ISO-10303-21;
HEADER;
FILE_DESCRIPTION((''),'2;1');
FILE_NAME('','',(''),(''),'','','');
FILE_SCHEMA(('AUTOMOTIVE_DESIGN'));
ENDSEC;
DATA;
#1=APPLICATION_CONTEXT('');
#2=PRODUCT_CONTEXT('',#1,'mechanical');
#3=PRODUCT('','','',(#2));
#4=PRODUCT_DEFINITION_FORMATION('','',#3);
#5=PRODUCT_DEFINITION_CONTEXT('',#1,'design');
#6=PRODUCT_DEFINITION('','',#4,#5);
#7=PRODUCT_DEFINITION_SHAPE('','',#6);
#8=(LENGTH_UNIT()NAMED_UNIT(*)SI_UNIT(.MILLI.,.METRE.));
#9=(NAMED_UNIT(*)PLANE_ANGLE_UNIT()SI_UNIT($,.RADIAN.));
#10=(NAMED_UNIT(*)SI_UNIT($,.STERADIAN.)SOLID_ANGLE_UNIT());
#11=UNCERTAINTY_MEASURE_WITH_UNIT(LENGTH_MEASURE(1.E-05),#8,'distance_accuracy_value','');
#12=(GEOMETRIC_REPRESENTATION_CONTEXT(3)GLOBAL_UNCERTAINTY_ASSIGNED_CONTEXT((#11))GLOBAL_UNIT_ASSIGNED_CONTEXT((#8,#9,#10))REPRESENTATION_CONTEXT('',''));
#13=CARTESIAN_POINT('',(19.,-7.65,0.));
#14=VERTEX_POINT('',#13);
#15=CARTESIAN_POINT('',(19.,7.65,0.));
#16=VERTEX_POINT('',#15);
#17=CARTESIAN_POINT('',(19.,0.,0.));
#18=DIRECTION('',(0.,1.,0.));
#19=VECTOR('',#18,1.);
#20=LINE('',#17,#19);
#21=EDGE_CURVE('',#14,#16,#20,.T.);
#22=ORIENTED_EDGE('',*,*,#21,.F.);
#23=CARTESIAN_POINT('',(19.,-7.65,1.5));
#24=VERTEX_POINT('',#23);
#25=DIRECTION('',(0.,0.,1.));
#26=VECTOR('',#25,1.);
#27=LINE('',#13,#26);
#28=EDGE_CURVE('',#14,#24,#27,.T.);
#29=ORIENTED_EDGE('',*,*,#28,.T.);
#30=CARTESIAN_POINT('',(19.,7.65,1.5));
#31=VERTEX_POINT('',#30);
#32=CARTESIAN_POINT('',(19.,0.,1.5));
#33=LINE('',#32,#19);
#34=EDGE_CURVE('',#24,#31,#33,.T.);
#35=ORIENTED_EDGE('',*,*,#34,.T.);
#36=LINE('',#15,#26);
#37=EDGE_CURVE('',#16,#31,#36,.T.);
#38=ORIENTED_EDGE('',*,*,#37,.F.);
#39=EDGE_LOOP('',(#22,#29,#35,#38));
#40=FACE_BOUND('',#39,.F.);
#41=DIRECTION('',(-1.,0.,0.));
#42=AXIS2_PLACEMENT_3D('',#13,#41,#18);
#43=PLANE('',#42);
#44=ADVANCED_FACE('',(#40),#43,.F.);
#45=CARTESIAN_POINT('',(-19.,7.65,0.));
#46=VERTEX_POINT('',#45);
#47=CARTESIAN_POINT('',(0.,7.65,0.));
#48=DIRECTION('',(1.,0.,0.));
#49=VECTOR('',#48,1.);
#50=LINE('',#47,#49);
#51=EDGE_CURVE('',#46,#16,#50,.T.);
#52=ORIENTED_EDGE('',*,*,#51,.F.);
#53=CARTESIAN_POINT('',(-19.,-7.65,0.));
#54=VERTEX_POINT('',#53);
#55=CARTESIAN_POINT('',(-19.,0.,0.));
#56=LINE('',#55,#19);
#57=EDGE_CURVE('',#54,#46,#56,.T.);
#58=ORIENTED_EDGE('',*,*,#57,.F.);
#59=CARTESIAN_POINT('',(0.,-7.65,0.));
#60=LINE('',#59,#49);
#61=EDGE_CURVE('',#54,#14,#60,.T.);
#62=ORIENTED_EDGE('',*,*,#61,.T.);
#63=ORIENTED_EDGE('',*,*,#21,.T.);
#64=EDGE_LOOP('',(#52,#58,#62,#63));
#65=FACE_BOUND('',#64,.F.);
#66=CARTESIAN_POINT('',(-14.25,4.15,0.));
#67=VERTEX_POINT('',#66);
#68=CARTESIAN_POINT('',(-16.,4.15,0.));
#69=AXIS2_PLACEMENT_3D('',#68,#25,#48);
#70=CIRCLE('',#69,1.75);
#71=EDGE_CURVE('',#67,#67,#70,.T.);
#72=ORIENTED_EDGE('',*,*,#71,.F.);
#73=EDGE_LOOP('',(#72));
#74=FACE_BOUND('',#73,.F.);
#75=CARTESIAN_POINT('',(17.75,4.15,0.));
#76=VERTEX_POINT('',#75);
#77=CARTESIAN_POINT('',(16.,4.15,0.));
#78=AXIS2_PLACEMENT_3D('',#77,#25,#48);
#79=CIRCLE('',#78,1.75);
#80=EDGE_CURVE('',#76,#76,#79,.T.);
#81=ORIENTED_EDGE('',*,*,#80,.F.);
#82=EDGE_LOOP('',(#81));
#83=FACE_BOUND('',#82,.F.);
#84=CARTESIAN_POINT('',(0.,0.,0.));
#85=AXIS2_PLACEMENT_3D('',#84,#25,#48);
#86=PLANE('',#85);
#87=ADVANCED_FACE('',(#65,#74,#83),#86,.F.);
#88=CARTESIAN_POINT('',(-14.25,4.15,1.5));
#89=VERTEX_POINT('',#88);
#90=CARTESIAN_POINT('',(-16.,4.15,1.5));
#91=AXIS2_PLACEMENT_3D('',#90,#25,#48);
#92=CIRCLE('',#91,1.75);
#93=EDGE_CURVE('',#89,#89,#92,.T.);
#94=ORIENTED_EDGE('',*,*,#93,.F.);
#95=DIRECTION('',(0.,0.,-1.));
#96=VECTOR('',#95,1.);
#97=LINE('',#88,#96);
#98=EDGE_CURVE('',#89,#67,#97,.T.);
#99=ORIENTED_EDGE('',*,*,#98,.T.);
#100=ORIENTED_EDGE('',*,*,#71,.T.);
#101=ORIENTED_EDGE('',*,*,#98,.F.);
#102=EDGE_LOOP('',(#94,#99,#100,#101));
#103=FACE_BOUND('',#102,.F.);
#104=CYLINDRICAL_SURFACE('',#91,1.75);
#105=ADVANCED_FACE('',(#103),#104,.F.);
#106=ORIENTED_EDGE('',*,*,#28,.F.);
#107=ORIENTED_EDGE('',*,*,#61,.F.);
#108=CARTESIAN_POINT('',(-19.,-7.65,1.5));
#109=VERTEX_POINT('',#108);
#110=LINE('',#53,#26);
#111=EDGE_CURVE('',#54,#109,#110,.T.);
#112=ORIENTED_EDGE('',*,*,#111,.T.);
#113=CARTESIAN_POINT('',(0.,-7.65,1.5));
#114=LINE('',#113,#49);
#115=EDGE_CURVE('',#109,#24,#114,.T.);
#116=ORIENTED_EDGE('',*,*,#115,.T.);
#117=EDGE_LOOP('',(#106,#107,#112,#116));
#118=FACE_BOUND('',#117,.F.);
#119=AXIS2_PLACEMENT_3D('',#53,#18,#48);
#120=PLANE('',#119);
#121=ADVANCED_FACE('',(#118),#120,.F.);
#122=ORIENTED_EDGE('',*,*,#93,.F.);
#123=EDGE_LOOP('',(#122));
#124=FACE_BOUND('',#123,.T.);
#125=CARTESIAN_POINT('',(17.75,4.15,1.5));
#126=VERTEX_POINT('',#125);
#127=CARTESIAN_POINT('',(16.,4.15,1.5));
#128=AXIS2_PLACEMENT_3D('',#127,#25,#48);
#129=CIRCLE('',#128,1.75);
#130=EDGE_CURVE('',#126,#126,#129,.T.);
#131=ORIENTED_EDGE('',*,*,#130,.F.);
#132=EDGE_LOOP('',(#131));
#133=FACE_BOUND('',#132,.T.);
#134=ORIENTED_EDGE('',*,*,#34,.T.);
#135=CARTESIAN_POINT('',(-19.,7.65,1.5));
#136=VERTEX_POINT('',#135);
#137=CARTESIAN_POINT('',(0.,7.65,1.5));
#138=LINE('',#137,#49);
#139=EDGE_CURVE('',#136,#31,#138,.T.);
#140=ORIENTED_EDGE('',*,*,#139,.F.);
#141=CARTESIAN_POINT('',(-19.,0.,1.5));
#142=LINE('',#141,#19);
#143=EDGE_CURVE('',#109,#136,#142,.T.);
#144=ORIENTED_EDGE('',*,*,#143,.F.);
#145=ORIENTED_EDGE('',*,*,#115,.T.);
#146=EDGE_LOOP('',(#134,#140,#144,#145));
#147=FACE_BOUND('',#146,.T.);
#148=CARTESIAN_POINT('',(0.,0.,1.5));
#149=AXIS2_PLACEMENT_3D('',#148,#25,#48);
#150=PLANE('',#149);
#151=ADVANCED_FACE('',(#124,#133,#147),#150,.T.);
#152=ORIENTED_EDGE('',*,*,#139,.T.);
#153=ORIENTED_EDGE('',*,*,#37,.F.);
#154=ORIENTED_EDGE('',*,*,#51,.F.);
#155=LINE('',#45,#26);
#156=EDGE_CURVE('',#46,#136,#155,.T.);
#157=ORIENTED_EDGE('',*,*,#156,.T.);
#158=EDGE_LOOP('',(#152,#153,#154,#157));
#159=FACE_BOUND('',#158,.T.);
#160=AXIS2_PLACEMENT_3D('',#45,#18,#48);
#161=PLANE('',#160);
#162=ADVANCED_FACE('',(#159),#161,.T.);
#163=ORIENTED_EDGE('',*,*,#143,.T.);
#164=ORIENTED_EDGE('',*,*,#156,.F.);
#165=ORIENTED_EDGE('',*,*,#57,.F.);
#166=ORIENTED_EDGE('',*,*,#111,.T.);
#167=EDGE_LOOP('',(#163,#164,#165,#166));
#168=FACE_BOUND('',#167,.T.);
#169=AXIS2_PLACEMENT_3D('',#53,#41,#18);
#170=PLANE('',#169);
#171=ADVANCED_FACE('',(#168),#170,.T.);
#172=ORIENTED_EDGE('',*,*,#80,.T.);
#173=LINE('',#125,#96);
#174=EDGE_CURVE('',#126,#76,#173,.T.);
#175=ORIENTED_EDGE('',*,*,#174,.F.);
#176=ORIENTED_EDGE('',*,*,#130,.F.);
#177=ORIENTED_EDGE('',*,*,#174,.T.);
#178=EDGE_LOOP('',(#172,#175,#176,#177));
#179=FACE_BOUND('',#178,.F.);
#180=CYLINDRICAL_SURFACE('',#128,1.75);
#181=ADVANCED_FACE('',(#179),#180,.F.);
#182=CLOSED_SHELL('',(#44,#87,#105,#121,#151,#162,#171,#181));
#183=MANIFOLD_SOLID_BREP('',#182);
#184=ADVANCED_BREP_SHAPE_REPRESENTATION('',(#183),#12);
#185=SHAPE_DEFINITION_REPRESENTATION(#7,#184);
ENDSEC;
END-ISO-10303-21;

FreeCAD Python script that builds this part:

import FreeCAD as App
import Part
import Sketcher

doc = App.newDocument("Part")
body = doc.addObject("PartDesign::Body", "Body")

# Sketch on XY plane
sketch1 = body.newObject("Sketcher::SketchObject", "Sketch")
sketch1.AttachmentSupport = (doc.getObject("XY_Plane"), [""])
sketch1.MapMode = "FlatFace"
sketch1.addGeometry([
    Part.LineSegment(App.Vector(-19, 8, 0), App.Vector(-19, -8, 0)),
    Part.LineSegment(App.Vector(-19, -8, 0), App.Vector(19, -8, 0)),
    Part.LineSegment(App.Vector(19, -8, 0), App.Vector(19, 8, 0)),
    Part.LineSegment(App.Vector(19, 8, 0), App.Vector(-19, 8, 0)),
], False)
sketch1.addConstraint([
    Sketcher.Constraint("Coincident", 0, 2, 1, 1),
    Sketcher.Constraint("Coincident", 1, 2, 2, 1),
    Sketcher.Constraint("Coincident", 2, 2, 3, 1),
    Sketcher.Constraint("Coincident", 3, 2, 0, 1),
    Sketcher.Constraint("Vertical", 0),
    Sketcher.Constraint("Horizontal", 1),
    Sketcher.Constraint("Vertical", 2),
    Sketcher.Constraint("Horizontal", 3),
    Sketcher.Constraint("Symmetric", 0, 2, 2, 2, -1, 1),
    Sketcher.Constraint("DistanceX", 1, 1, 1, 2, 38.0),
    Sketcher.Constraint("DistanceY", 0, 2, 0, 1, 15.3),
])
pad1 = body.newObject("PartDesign::Pad", "Pad")
pad1.Profile = sketch1
pad1.Length = 1.5

# Sketch on XY plane
sketch2 = body.newObject("Sketcher::SketchObject", "Sketch001")
sketch2.AttachmentSupport = (doc.getObject("XY_Plane"), [""])
sketch2.MapMode = "FlatFace"
sketch2.AttachmentOffset = App.Placement(App.Vector(0, 0, 1.5), App.Rotation())
sketch2.addGeometry([
    Part.Circle(App.Vector(-16, 4.2, 0), App.Vector(0, 0, 1), 1.8),
    Part.Circle(App.Vector(16, 4.2, 0), App.Vector(0, 0, 1), 1.8),
], False)
sketch2.addConstraint([
    Sketcher.Constraint("Equal", 0, 1),
    Sketcher.Constraint("Symmetric", 0, 3, 1, 3, -2),
    Sketcher.Constraint("Diameter", 0, 3.5),
    Sketcher.Constraint("DistanceX", 0, 3, -1, 1, 16.0),
    Sketcher.Constraint("DistanceY", -1, 1, 0, 3, 4.15),
])
pocket1 = body.newObject("PartDesign::Pocket", "Pocket")
pocket1.Profile = sketch2
pocket1.Length = 5

doc.recompute()
